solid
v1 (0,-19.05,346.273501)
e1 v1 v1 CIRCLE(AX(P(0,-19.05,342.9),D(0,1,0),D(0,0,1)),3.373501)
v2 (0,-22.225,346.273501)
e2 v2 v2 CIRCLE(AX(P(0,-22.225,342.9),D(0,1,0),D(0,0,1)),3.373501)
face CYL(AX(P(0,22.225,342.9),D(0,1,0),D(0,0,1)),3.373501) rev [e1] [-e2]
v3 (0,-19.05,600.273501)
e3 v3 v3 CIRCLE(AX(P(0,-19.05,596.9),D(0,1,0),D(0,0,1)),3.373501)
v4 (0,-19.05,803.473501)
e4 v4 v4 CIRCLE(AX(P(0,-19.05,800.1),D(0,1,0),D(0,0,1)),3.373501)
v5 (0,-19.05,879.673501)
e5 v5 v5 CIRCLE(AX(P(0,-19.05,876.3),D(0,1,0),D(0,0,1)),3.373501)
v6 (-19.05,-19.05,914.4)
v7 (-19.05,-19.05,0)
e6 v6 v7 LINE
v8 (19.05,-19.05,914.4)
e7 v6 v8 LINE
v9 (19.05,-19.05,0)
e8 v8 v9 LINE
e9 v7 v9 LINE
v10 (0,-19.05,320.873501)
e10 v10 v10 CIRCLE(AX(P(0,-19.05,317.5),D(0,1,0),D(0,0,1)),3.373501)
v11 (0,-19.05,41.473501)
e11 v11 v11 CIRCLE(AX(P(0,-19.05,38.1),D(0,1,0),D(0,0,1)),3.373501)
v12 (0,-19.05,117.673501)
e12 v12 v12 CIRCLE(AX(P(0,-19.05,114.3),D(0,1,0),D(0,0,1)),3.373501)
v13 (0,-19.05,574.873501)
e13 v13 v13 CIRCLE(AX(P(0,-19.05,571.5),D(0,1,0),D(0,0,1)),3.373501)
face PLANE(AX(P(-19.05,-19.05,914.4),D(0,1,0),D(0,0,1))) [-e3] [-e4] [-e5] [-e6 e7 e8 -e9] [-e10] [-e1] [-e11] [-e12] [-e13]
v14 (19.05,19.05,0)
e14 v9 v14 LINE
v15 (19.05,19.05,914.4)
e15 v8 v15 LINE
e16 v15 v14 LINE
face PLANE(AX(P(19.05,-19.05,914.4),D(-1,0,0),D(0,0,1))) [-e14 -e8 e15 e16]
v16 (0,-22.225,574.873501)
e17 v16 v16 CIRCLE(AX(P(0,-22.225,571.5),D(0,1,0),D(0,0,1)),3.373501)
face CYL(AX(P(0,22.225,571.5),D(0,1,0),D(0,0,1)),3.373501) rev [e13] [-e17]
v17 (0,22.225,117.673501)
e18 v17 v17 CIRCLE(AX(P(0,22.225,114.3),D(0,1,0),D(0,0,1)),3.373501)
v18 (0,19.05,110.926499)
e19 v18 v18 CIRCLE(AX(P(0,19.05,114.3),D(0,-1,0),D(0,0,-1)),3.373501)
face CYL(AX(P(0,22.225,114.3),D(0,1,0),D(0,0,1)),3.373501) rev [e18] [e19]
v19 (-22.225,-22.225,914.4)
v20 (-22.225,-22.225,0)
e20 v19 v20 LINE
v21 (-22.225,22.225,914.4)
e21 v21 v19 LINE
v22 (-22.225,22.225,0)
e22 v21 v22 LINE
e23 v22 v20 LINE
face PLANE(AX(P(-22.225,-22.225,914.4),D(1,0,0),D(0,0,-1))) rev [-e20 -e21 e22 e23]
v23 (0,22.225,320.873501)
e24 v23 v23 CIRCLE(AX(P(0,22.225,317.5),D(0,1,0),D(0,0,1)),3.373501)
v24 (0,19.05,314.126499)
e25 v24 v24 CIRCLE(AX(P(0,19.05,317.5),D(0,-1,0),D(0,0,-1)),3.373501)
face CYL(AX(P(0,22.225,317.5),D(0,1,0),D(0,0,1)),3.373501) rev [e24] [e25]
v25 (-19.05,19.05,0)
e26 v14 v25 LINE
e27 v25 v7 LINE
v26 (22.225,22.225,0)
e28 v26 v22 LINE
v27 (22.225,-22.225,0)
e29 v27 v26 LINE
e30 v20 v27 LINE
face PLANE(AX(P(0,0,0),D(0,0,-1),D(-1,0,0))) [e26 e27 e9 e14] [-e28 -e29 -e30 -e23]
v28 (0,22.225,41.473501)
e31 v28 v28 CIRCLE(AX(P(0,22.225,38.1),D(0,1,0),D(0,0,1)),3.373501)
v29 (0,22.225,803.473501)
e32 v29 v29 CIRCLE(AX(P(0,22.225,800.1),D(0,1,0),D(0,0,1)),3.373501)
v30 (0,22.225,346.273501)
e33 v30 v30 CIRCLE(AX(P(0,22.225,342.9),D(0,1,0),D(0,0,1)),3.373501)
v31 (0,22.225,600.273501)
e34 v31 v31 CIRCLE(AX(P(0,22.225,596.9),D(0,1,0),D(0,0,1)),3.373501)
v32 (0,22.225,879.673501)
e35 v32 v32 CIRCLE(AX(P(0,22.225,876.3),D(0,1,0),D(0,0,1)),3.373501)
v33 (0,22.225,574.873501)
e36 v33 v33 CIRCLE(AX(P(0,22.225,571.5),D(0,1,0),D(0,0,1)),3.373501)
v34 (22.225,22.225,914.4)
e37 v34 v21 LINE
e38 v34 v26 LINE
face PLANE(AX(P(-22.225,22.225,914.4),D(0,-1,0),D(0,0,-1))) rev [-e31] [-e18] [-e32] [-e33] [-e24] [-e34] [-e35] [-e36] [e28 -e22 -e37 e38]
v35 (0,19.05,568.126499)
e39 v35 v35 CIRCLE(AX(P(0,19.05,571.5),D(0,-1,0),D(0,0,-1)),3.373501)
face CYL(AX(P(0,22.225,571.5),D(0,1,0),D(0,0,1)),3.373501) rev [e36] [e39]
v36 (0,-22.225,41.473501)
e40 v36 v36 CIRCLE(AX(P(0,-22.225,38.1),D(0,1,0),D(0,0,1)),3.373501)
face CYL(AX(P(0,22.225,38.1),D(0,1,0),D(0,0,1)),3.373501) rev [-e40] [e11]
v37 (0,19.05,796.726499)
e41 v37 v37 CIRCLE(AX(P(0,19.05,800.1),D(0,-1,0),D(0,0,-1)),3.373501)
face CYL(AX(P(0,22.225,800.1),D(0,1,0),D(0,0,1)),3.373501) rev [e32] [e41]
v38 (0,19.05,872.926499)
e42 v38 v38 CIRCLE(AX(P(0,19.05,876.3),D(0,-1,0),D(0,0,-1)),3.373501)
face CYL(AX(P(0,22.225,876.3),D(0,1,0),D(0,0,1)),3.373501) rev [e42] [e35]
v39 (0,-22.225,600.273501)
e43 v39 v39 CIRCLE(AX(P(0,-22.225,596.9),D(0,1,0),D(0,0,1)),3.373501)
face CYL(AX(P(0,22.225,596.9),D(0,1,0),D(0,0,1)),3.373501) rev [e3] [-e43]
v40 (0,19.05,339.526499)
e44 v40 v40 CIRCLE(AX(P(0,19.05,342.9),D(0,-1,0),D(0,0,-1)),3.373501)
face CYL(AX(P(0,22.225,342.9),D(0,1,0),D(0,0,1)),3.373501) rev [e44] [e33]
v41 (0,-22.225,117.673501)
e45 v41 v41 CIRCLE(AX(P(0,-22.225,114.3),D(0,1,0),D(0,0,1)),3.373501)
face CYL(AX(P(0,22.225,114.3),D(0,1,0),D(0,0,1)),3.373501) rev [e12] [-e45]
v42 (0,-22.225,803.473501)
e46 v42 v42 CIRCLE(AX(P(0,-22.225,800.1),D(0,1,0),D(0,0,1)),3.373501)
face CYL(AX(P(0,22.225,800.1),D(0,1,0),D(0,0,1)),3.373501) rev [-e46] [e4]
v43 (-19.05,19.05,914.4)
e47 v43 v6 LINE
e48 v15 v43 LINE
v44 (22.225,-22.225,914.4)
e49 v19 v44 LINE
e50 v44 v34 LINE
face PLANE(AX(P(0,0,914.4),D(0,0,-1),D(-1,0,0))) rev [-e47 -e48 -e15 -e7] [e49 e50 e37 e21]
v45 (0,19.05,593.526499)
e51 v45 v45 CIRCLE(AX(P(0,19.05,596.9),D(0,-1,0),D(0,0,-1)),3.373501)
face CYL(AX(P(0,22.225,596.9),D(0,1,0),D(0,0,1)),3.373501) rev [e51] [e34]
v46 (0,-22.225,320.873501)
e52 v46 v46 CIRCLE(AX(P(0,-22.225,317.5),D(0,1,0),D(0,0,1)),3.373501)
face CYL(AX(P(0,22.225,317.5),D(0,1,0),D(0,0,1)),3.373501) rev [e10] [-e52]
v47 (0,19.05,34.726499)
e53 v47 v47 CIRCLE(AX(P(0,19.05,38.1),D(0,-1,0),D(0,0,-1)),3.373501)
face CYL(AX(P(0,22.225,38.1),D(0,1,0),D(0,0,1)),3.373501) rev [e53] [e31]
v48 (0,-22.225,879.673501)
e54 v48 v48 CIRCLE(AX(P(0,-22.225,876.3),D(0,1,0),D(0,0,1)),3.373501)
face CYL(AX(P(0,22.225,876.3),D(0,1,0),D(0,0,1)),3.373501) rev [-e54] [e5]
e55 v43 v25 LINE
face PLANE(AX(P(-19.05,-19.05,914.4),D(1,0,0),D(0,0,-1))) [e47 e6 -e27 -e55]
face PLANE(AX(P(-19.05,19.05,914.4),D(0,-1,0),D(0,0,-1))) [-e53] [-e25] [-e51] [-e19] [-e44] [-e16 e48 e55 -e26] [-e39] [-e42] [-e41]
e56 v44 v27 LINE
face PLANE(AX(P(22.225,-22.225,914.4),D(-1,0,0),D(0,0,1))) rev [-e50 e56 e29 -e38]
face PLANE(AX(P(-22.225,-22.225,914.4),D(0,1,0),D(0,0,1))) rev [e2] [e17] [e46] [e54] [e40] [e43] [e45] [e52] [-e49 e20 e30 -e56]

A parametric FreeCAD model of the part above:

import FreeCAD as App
import Part
import Sketcher

V = App.Vector
Q = App.Units.Quantity

doc = App.newDocument("Part")
body = doc.addObject("PartDesign::Body", "Body")

# Sketch on XY plane
sketch1 = doc.addObject("Sketcher::SketchObject", "Sketch")
body.addObject(sketch1)
sketch1.AttachmentSupport = (doc.XY_Plane, [""])
sketch1.MapMode = "FlatFace"
sketch1.addGeometry(Part.LineSegment(V(-22.225, 22.225, 0), V(-22.225, -22.225, 0)), False)
sketch1.addGeometry(Part.LineSegment(V(-22.225, -22.225, 0), V(22.225, -22.225, 0)), False)
sketch1.addGeometry(Part.LineSegment(V(22.225, -22.225, 0), V(22.225, 22.225, 0)), False)
sketch1.addGeometry(Part.LineSegment(V(22.225, 22.225, 0), V(-22.225, 22.225, 0)), False)
sketch1.addGeometry(Part.LineSegment(V(19.05, -19.05, 0), V(-19.05, -19.05, 0)), False)
sketch1.addGeometry(Part.LineSegment(V(-19.05, -19.05, 0), V(-19.05, 19.05, 0)), False)
sketch1.addGeometry(Part.LineSegment(V(-19.05, 19.05, 0), V(19.05, 19.05, 0)), False)
sketch1.addGeometry(Part.LineSegment(V(19.05, 19.05, 0), V(19.05, -19.05, 0)), False)
sketch1.addConstraint(Sketcher.Constraint("Coincident", 0, 2, 1, 1))
sketch1.addConstraint(Sketcher.Constraint("Coincident", 1, 2, 2, 1))
sketch1.addConstraint(Sketcher.Constraint("Coincident", 2, 2, 3, 1))
sketch1.addConstraint(Sketcher.Constraint("Coincident", 3, 2, 0, 1))
sketch1.addConstraint(Sketcher.Constraint("Coincident", 4, 2, 5, 1))
sketch1.addConstraint(Sketcher.Constraint("Coincident", 5, 2, 6, 1))
sketch1.addConstraint(Sketcher.Constraint("Coincident", 6, 2, 7, 1))
sketch1.addConstraint(Sketcher.Constraint("Coincident", 7, 2, 4, 1))
sketch1.addConstraint(Sketcher.Constraint("Vertical", 0))
sketch1.addConstraint(Sketcher.Constraint("Horizontal", 1))
sketch1.addConstraint(Sketcher.Constraint("Vertical", 2))
sketch1.addConstraint(Sketcher.Constraint("Horizontal", 3))
sketch1.addConstraint(Sketcher.Constraint("Horizontal", 4))
sketch1.addConstraint(Sketcher.Constraint("Vertical", 5))
sketch1.addConstraint(Sketcher.Constraint("Horizontal", 6))
sketch1.addConstraint(Sketcher.Constraint("Vertical", 7))
sketch1.addConstraint(Sketcher.Constraint("Symmetric", 0, 2, 2, 2, -1, 1))
sketch1.addConstraint(Sketcher.Constraint("Symmetric", 4, 2, 6, 2, -1, 1))
sketch1.addConstraint(Sketcher.Constraint("Equal", 3, 0))
sketch1.addConstraint(Sketcher.Constraint("Equal", 6, 5))
sketch1.addConstraint(Sketcher.Constraint("DistanceX", 4, 2, 4, 1, Q("1.5 in")))
sketch1.addConstraint(Sketcher.Constraint("DistanceX", 1, 1, 1, 2, Q("1.75 in")))
pad1 = doc.addObject("PartDesign::Pad", "Pad")
body.addObject(pad1)
pad1.Profile = sketch1
pad1.Length = Q("36 in")

# Sketch on XZ plane
sketch2 = doc.addObject("Sketcher::SketchObject", "Sketch001")
body.addObject(sketch2)
sketch2.AttachmentSupport = (doc.XZ_Plane, [""])
sketch2.MapMode = "FlatFace"
sketch2.AttachmentOffset = App.Placement(V(0, 0, -0.875 * 25.4), App.Rotation())
sketch2.addGeometry(Part.Circle(V(0, 38.1, 0), V(0, 0, 1), 3.373501), False)
sketch2.addGeometry(Part.Circle(V(0, 876.3, 0), V(0, 0, 1), 3.373501), False)
sketch2.addGeometry(Part.Circle(V(0, 317.5, 0), V(0, 0, 1), 3.373501), False)
sketch2.addGeometry(Part.Circle(V(0, 596.9, 0), V(0, 0, 1), 3.373501), False)
sketch2.addGeometry(Part.Circle(V(0, 114.3, 0), V(0, 0, 1), 3.373501), False)
sketch2.addGeometry(Part.Circle(V(0, 342.9, 0), V(0, 0, 1), 3.373501), False)
sketch2.addGeometry(Part.Circle(V(0, 571.5, 0), V(0, 0, 1), 3.373501), False)
sketch2.addGeometry(Part.Circle(V(0, 800.1, 0), V(0, 0, 1), 3.373501), False)
sketch2.addConstraint(Sketcher.Constraint("Equal", 0, 1))
sketch2.addConstraint(Sketcher.Constraint("Equal", 1, 2))
sketch2.addConstraint(Sketcher.Constraint("Equal", 2, 3))
sketch2.addConstraint(Sketcher.Constraint("Equal", 3, 4))
sketch2.addConstraint(Sketcher.Constraint("Equal", 4, 5))
sketch2.addConstraint(Sketcher.Constraint("Equal", 5, 6))
sketch2.addConstraint(Sketcher.Constraint("Equal", 6, 7))
sketch2.addConstraint(Sketcher.Constraint("PointOnObject", 0, 3, -2))
sketch2.addConstraint(Sketcher.Constraint("PointOnObject", 1, 3, -2))
sketch2.addConstraint(Sketcher.Constraint("PointOnObject", 2, 3, -2))
sketch2.addConstraint(Sketcher.Constraint("PointOnObject", 3, 3, -2))
sketch2.addConstraint(Sketcher.Constraint("PointOnObject", 4, 3, -2))
sketch2.addConstraint(Sketcher.Constraint("PointOnObject", 5, 3, -2))
sketch2.addConstraint(Sketcher.Constraint("PointOnObject", 6, 3, -2))
sketch2.addConstraint(Sketcher.Constraint("PointOnObject", 7, 3, -2))
sketch2.addConstraint(Sketcher.Constraint("DistanceY", 0, 3, 1, 3, Q("33 in")))
sketch2.addConstraint(Sketcher.Constraint("DistanceY", 0, 3, 2, 3, Q("11 in")))
sketch2.addConstraint(Sketcher.Constraint("DistanceY", 3, 3, 1, 3, Q("11 in")))
sketch2.addConstraint(Sketcher.Constraint("DistanceY", 0, 3, 4, 3, Q("3 in")))
sketch2.addConstraint(Sketcher.Constraint("DistanceY", 2, 3, 5, 3, Q("1 in")))
sketch2.addConstraint(Sketcher.Constraint("DistanceY", 6, 3, 3, 3, Q("1 in")))
sketch2.addConstraint(Sketcher.Constraint("DistanceY", 7, 3, 1, 3, Q("3 in")))
sketch2.addConstraint(Sketcher.Constraint("DistanceY", -1, 1, 0, 3, Q("1.5 in")))
sketch2.addConstraint(Sketcher.Constraint("Diameter", 0, Q("6.747002 mm")))
doc.recompute()
hole = doc.addObject("PartDesign::Hole", "Hole")
body.addObject(hole)
hole.Profile = sketch2
hole.ThreadType = "None"
hole.Diameter = 6.747002
hole.DepthType = "ThroughAll"
hole.Reversed = True

doc.recompute()
